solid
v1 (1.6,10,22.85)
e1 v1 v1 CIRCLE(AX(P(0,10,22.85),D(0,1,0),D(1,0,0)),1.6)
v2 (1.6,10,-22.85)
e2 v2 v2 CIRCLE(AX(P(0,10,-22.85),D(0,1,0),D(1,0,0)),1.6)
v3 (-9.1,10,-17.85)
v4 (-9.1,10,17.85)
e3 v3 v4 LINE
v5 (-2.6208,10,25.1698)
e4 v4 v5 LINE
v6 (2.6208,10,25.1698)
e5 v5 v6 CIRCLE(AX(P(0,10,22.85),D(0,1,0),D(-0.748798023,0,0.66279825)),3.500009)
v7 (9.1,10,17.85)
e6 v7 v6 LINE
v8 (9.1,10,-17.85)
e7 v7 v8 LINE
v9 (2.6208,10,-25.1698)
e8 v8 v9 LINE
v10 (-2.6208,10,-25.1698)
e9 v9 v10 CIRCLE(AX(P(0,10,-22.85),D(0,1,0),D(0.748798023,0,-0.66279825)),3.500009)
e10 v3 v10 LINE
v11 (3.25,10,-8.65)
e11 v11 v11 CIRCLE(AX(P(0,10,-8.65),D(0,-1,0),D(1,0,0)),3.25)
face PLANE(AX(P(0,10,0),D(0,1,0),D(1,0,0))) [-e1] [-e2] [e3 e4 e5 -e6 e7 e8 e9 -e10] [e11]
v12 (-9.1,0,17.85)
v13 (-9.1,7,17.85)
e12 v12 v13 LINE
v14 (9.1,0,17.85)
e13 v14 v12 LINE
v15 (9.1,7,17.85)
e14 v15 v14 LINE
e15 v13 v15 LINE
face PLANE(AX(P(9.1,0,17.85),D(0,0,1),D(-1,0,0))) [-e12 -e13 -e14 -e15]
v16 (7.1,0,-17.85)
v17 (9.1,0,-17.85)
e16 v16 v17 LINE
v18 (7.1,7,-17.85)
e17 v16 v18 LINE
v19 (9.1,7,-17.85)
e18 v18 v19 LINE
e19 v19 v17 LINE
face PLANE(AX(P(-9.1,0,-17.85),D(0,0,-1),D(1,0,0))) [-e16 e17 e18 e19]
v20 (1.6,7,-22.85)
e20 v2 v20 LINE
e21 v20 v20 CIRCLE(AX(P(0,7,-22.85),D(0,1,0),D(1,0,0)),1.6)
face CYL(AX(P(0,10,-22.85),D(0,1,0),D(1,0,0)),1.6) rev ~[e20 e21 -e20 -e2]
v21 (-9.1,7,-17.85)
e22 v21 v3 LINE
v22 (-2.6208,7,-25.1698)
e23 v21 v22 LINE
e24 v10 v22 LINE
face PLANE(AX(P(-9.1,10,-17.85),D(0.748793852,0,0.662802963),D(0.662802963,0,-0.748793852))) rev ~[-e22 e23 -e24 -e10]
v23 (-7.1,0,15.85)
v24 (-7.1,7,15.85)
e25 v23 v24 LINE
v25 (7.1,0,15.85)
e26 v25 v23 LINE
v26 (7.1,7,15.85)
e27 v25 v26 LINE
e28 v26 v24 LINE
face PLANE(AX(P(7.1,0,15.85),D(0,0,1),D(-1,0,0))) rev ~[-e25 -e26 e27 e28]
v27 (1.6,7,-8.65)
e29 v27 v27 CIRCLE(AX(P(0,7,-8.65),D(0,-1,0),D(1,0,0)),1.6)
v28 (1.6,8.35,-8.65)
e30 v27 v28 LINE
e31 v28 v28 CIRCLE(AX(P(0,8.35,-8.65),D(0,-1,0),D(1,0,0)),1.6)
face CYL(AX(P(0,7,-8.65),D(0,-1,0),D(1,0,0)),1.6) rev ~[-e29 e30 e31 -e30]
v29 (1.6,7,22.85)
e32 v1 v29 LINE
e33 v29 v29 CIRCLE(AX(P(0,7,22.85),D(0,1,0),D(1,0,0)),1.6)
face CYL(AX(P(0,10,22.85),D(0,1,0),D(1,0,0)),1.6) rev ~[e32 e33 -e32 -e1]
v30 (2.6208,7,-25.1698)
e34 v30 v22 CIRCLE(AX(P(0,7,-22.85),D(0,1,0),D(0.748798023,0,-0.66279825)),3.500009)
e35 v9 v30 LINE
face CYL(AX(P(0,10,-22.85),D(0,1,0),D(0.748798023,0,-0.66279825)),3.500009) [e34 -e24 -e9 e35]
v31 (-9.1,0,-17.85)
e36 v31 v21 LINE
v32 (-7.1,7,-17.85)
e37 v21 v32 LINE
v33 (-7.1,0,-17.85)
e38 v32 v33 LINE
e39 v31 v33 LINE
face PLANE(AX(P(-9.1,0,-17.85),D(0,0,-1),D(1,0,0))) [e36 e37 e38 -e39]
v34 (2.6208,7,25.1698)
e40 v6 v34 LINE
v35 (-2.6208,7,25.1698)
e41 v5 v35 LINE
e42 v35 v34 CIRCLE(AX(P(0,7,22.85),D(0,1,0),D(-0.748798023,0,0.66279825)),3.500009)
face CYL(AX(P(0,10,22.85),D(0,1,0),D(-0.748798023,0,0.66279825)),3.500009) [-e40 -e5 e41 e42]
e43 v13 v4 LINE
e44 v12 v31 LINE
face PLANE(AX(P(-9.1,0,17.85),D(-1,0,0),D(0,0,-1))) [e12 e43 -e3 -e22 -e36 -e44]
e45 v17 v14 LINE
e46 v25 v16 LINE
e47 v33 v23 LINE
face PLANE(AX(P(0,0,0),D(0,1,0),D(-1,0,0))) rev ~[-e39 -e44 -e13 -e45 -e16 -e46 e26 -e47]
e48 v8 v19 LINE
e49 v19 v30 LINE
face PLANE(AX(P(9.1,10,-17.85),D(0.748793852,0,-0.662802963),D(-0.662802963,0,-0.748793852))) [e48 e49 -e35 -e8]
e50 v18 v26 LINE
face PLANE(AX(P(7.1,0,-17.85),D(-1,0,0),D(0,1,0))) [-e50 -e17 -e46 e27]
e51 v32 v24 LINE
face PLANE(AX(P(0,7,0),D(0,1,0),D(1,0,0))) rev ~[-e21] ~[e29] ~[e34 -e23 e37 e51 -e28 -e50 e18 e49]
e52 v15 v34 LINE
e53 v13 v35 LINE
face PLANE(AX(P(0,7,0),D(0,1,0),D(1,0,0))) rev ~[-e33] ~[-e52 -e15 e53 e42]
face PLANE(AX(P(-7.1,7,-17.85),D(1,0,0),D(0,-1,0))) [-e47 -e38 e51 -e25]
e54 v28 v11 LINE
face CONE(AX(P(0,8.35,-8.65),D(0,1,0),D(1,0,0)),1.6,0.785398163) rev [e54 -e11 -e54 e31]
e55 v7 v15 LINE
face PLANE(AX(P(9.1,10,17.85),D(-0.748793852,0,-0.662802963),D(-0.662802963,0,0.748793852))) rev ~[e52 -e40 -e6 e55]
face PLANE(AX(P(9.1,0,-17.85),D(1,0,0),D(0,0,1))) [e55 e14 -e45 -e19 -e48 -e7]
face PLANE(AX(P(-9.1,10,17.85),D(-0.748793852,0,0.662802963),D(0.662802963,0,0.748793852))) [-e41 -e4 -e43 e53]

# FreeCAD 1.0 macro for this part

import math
import FreeCAD as App
import Part
import Sketcher

V = App.Vector
Q = App.Units.Quantity


def edges_at(feature, points):
    """Names of the edges that pass closest to the given points."""
    edges = feature.Shape.Edges
    near = lambda p: min(range(len(edges)), key=lambda i: edges[i].distToShape(Part.Vertex(*p))[0])
    return sorted({f"Edge{near(p) + 1}" for p in points})

doc = App.newDocument("Part")
body = doc.addObject("PartDesign::Body", "Body")

sketch1 = body.newObject("Sketcher::SketchObject", "Sketch")
sketch1.AttachmentSupport = (doc.getObject("XZ_Plane"), [""])
sketch1.MapMode = "FlatFace"
sketch1.addGeometry([
    Part.LineSegment(V(9, -18, 0), V(-9, -18, 0)),
    Part.LineSegment(V(-9, -18, 0), V(-9, 18, 0)),
    Part.LineSegment(V(-9, 18, 0), V(9, 18, 0)),
    Part.LineSegment(V(9, 18, 0), V(9, -18, 0)),
    Part.LineSegment(V(-7, 16, 0), V(-7, -16, 0)),
    Part.LineSegment(V(-7, -16, 0), V(7, -16, 0)),
    Part.LineSegment(V(7, -16, 0), V(7, 16, 0)),
    Part.LineSegment(V(7, 16, 0), V(-7, 16, 0)),
], False)
sketch1.addConstraint([
    Sketcher.Constraint("Coincident", 0, 2, 1, 1),
    Sketcher.Constraint("Coincident", 1, 2, 2, 1),
    Sketcher.Constraint("Coincident", 2, 2, 3, 1),
    Sketcher.Constraint("Coincident", 3, 2, 0, 1),
    Sketcher.Constraint("Coincident", 4, 2, 5, 1),
    Sketcher.Constraint("Coincident", 5, 2, 6, 1),
    Sketcher.Constraint("Coincident", 6, 2, 7, 1),
    Sketcher.Constraint("Coincident", 7, 2, 4, 1),
    Sketcher.Constraint("Horizontal", 0),
    Sketcher.Constraint("Vertical", 1),
    Sketcher.Constraint("Horizontal", 2),
    Sketcher.Constraint("Vertical", 3),
    Sketcher.Constraint("Vertical", 4),
    Sketcher.Constraint("Horizontal", 5),
    Sketcher.Constraint("Vertical", 6),
    Sketcher.Constraint("Horizontal", 7),
    Sketcher.Constraint("Symmetric", 0, 2, 2, 2, -1, 1),
    Sketcher.Constraint("Symmetric", 4, 2, 6, 2, -1, 1),
    Sketcher.Constraint("DistanceX", 5, 1, 5, 2, Q("14.2 mm")),
    Sketcher.Constraint("DistanceY", 4, 2, 4, 1, Q("31.7 mm")),
    Sketcher.Constraint("DistanceX", 0, 2, 4, 2, Q("2 mm")),
    Sketcher.Constraint("DistanceY", 0, 2, 4, 2, Q("2 mm")),
])
pad1 = body.newObject("PartDesign::Pad", "Pad")
pad1.Profile = sketch1
pad1.Length = 7
pad1.Reversed = True

sketch2 = body.newObject("Sketcher::SketchObject", "Sketch001")
sketch2.AttachmentSupport = (doc.getObject("XZ_Plane"), [""])
sketch2.MapMode = "FlatFace"
sketch2.AttachmentOffset = App.Placement(V(0, 0, -7), App.Rotation())
sketch2.addGeometry([
    Part.LineSegment(V(9, -18, 0), V(-9, -18, 0)),
    Part.LineSegment(V(-9, -18, 0), V(-9, 18, 0)),
    Part.LineSegment(V(-9, 18, 0), V(9, 18, 0)),
    Part.LineSegment(V(9, 18, 0), V(9, -18, 0)),
], False)
sketch2.addConstraint([
    Sketcher.Constraint("Coincident", 0, 2, 1, 1),
    Sketcher.Constraint("Coincident", 1, 2, 2, 1),
    Sketcher.Constraint("Coincident", 2, 2, 3, 1),
    Sketcher.Constraint("Coincident", 3, 2, 0, 1),
    Sketcher.Constraint("Horizontal", 0),
    Sketcher.Constraint("Vertical", 1),
    Sketcher.Constraint("Horizontal", 2),
    Sketcher.Constraint("Vertical", 3),
    Sketcher.Constraint("Symmetric", 0, 2, 2, 2, -1, 1),
    Sketcher.Constraint("DistanceX", 0, 2, 0, 1, Q("18.2 mm")),
    Sketcher.Constraint("DistanceY", 1, 1, 1, 2, Q("35.7 mm")),
])
pad2 = body.newObject("PartDesign::Pad", "Pad001")
pad2.Profile = sketch2
pad2.Length = 3
pad2.Reversed = True

sketch3 = body.newObject("Sketcher::SketchObject", "Sketch002")
sketch3.AttachmentSupport = (doc.getObject("XY_Plane"), [""])
sketch3.MapMode = "FlatFace"
sketch3.AttachmentOffset = App.Placement(V(0, 0, -17.85), App.Rotation())
sketch3.addGeometry([
    Part.LineSegment(V(7, 7, 0), V(7, 0, 0)),
    Part.LineSegment(V(7, 0, 0), V(-7, 0, 0)),
    Part.LineSegment(V(-7, 0, 0), V(-7, 7, 0)),
    Part.LineSegment(V(-7, 7, 0), V(7, 7, 0)),
], False)
sketch3.addConstraint([
    Sketcher.Constraint("Coincident", 0, 2, 1, 1),
    Sketcher.Constraint("Coincident", 1, 2, 2, 1),
    Sketcher.Constraint("Coincident", 2, 2, 3, 1),
    Sketcher.Constraint("Coincident", 3, 2, 0, 1),
    Sketcher.Constraint("Vertical", 0),
    Sketcher.Constraint("Horizontal", 1),
    Sketcher.Constraint("Vertical", 2),
    Sketcher.Constraint("Horizontal", 3),
    Sketcher.Constraint("Symmetric", 0, 2, 1, 2, -1, 1),
    Sketcher.Constraint("DistanceY", 0, 2, 0, 1, Q("7 mm")),
    Sketcher.Constraint("DistanceX", 1, 2, 1, 1, Q("14.2 mm")),
])
pocket1 = body.newObject("PartDesign::Pocket", "Pocket")
pocket1.Profile = sketch3
pocket1.Length = 3
pocket1.Reversed = True

sketch4 = body.newObject("Sketcher::SketchObject", "Sketch003")
sketch4.AttachmentSupport = (doc.getObject("XZ_Plane"), [""])
sketch4.MapMode = "FlatFace"
sketch4.AttachmentOffset = App.Placement(V(0, 0, -10), App.Rotation())
sketch4.addGeometry([
    Part.LineSegment(V(-9.1, -17.9, 0), V(9.1, -17.9, 0)),
    Part.LineSegment(V(9.1, -17.9, 0), V(2.6, -25.2, 0)),
    Part.ArcOfCircle(Part.Circle(V(0, -22.9, 0), V(0, 0, 1), 3.5), math.radians(-138), math.radians(-42)),
    Part.LineSegment(V(-2.6, -25.2, 0), V(-9.1, -17.9, 0)),
    Part.Circle(V(0, -22.9, 0), V(0, 0, 1), 1.6),
    Part.LineSegment(V(9.1, 17.9, 0), V(-9.1, 17.9, 0)),
    Part.LineSegment(V(-9.1, 17.9, 0), V(-2.6, 25.2, 0)),
    Part.ArcOfCircle(Part.Circle(V(0, 22.9, 0), V(0, 0, 1), 3.5), math.radians(42), math.radians(138)),
    Part.LineSegment(V(2.6, 25.2, 0), V(9.1, 17.9, 0)),
    Part.Circle(V(0, 22.9, 0), V(0, 0, 1), 1.6),
], False)
sketch4.addConstraint([
    Sketcher.Constraint("Coincident", 0, 2, 1, 1),
    Sketcher.Constraint("Tangent", 1, 2, 2, 2),
    Sketcher.Constraint("Tangent", 2, 1, 3, 1),
    Sketcher.Constraint("Coincident", 3, 2, 0, 1),
    Sketcher.Constraint("Coincident", 5, 2, 6, 1),
    Sketcher.Constraint("Tangent", 6, 2, 7, 2),
    Sketcher.Constraint("Tangent", 7, 1, 8, 1),
    Sketcher.Constraint("Coincident", 8, 2, 5, 1),
    Sketcher.Constraint("Horizontal", 0),
    Sketcher.Constraint("Horizontal", 5),
    Sketcher.Constraint("Coincident", 4, 3, 2, 3),
    Sketcher.Constraint("Coincident", 9, 3, 7, 3),
    Sketcher.Constraint("Equal", 2, 7),
    Sketcher.Constraint("Equal", 4, 9),
    Sketcher.Constraint("Symmetric", 2, 3, 7, 3, -1, 1),
    Sketcher.Constraint("Symmetric", 0, 2, 5, 2, -1, 1),
    Sketcher.Constraint("Symmetric", 1, 2, 2, 1, -2),
    Sketcher.Constraint("Parallel", 3, 8),
    Sketcher.Constraint("Diameter", 4, Q("3.2 mm")),
    Sketcher.Constraint("Radius", 2, Q("3.5 mm")),
    Sketcher.Constraint("DistanceY", 2, 3, 0, 2, Q("5 mm")),
    Sketcher.Constraint("DistanceX", 0, 1, 0, 2, Q("18.2 mm")),
    Sketcher.Constraint("DistanceY", 2, 3, 7, 3, Q("45.7 mm")),
])
pad3 = body.newObject("PartDesign::Pad", "Pad002")
pad3.Profile = sketch4
pad3.Length = 3

sketch5 = body.newObject("Sketcher::SketchObject", "Sketch004")
sketch5.AttachmentSupport = (doc.getObject("XZ_Plane"), [""])
sketch5.MapMode = "FlatFace"
sketch5.AttachmentOffset = App.Placement(V(0, 0, -7), App.Rotation())
sketch5.addGeometry(Part.Circle(V(0, -8.7, 0), V(0, 0, 1), 1.6), False)
sketch5.addConstraint([
    Sketcher.Constraint("PointOnObject", 0, 3, -2),
    Sketcher.Constraint("Diameter", 0, Q("3.2 mm")),
    Sketcher.Constraint("DistanceY", 0, 3, -1, 1, Q("8.65 mm")),
])
pocket2 = body.newObject("PartDesign::Pocket", "Pocket001")
pocket2.Profile = sketch5
pocket2.Length = 10
doc.recompute()

chamfer = body.newObject("PartDesign::Chamfer", "Chamfer")
chamfer.Base = (pocket2, edges_at(pocket2, [(-1.6, 10, -8.65)]))
chamfer.Size = 1.65

doc.recompute()
